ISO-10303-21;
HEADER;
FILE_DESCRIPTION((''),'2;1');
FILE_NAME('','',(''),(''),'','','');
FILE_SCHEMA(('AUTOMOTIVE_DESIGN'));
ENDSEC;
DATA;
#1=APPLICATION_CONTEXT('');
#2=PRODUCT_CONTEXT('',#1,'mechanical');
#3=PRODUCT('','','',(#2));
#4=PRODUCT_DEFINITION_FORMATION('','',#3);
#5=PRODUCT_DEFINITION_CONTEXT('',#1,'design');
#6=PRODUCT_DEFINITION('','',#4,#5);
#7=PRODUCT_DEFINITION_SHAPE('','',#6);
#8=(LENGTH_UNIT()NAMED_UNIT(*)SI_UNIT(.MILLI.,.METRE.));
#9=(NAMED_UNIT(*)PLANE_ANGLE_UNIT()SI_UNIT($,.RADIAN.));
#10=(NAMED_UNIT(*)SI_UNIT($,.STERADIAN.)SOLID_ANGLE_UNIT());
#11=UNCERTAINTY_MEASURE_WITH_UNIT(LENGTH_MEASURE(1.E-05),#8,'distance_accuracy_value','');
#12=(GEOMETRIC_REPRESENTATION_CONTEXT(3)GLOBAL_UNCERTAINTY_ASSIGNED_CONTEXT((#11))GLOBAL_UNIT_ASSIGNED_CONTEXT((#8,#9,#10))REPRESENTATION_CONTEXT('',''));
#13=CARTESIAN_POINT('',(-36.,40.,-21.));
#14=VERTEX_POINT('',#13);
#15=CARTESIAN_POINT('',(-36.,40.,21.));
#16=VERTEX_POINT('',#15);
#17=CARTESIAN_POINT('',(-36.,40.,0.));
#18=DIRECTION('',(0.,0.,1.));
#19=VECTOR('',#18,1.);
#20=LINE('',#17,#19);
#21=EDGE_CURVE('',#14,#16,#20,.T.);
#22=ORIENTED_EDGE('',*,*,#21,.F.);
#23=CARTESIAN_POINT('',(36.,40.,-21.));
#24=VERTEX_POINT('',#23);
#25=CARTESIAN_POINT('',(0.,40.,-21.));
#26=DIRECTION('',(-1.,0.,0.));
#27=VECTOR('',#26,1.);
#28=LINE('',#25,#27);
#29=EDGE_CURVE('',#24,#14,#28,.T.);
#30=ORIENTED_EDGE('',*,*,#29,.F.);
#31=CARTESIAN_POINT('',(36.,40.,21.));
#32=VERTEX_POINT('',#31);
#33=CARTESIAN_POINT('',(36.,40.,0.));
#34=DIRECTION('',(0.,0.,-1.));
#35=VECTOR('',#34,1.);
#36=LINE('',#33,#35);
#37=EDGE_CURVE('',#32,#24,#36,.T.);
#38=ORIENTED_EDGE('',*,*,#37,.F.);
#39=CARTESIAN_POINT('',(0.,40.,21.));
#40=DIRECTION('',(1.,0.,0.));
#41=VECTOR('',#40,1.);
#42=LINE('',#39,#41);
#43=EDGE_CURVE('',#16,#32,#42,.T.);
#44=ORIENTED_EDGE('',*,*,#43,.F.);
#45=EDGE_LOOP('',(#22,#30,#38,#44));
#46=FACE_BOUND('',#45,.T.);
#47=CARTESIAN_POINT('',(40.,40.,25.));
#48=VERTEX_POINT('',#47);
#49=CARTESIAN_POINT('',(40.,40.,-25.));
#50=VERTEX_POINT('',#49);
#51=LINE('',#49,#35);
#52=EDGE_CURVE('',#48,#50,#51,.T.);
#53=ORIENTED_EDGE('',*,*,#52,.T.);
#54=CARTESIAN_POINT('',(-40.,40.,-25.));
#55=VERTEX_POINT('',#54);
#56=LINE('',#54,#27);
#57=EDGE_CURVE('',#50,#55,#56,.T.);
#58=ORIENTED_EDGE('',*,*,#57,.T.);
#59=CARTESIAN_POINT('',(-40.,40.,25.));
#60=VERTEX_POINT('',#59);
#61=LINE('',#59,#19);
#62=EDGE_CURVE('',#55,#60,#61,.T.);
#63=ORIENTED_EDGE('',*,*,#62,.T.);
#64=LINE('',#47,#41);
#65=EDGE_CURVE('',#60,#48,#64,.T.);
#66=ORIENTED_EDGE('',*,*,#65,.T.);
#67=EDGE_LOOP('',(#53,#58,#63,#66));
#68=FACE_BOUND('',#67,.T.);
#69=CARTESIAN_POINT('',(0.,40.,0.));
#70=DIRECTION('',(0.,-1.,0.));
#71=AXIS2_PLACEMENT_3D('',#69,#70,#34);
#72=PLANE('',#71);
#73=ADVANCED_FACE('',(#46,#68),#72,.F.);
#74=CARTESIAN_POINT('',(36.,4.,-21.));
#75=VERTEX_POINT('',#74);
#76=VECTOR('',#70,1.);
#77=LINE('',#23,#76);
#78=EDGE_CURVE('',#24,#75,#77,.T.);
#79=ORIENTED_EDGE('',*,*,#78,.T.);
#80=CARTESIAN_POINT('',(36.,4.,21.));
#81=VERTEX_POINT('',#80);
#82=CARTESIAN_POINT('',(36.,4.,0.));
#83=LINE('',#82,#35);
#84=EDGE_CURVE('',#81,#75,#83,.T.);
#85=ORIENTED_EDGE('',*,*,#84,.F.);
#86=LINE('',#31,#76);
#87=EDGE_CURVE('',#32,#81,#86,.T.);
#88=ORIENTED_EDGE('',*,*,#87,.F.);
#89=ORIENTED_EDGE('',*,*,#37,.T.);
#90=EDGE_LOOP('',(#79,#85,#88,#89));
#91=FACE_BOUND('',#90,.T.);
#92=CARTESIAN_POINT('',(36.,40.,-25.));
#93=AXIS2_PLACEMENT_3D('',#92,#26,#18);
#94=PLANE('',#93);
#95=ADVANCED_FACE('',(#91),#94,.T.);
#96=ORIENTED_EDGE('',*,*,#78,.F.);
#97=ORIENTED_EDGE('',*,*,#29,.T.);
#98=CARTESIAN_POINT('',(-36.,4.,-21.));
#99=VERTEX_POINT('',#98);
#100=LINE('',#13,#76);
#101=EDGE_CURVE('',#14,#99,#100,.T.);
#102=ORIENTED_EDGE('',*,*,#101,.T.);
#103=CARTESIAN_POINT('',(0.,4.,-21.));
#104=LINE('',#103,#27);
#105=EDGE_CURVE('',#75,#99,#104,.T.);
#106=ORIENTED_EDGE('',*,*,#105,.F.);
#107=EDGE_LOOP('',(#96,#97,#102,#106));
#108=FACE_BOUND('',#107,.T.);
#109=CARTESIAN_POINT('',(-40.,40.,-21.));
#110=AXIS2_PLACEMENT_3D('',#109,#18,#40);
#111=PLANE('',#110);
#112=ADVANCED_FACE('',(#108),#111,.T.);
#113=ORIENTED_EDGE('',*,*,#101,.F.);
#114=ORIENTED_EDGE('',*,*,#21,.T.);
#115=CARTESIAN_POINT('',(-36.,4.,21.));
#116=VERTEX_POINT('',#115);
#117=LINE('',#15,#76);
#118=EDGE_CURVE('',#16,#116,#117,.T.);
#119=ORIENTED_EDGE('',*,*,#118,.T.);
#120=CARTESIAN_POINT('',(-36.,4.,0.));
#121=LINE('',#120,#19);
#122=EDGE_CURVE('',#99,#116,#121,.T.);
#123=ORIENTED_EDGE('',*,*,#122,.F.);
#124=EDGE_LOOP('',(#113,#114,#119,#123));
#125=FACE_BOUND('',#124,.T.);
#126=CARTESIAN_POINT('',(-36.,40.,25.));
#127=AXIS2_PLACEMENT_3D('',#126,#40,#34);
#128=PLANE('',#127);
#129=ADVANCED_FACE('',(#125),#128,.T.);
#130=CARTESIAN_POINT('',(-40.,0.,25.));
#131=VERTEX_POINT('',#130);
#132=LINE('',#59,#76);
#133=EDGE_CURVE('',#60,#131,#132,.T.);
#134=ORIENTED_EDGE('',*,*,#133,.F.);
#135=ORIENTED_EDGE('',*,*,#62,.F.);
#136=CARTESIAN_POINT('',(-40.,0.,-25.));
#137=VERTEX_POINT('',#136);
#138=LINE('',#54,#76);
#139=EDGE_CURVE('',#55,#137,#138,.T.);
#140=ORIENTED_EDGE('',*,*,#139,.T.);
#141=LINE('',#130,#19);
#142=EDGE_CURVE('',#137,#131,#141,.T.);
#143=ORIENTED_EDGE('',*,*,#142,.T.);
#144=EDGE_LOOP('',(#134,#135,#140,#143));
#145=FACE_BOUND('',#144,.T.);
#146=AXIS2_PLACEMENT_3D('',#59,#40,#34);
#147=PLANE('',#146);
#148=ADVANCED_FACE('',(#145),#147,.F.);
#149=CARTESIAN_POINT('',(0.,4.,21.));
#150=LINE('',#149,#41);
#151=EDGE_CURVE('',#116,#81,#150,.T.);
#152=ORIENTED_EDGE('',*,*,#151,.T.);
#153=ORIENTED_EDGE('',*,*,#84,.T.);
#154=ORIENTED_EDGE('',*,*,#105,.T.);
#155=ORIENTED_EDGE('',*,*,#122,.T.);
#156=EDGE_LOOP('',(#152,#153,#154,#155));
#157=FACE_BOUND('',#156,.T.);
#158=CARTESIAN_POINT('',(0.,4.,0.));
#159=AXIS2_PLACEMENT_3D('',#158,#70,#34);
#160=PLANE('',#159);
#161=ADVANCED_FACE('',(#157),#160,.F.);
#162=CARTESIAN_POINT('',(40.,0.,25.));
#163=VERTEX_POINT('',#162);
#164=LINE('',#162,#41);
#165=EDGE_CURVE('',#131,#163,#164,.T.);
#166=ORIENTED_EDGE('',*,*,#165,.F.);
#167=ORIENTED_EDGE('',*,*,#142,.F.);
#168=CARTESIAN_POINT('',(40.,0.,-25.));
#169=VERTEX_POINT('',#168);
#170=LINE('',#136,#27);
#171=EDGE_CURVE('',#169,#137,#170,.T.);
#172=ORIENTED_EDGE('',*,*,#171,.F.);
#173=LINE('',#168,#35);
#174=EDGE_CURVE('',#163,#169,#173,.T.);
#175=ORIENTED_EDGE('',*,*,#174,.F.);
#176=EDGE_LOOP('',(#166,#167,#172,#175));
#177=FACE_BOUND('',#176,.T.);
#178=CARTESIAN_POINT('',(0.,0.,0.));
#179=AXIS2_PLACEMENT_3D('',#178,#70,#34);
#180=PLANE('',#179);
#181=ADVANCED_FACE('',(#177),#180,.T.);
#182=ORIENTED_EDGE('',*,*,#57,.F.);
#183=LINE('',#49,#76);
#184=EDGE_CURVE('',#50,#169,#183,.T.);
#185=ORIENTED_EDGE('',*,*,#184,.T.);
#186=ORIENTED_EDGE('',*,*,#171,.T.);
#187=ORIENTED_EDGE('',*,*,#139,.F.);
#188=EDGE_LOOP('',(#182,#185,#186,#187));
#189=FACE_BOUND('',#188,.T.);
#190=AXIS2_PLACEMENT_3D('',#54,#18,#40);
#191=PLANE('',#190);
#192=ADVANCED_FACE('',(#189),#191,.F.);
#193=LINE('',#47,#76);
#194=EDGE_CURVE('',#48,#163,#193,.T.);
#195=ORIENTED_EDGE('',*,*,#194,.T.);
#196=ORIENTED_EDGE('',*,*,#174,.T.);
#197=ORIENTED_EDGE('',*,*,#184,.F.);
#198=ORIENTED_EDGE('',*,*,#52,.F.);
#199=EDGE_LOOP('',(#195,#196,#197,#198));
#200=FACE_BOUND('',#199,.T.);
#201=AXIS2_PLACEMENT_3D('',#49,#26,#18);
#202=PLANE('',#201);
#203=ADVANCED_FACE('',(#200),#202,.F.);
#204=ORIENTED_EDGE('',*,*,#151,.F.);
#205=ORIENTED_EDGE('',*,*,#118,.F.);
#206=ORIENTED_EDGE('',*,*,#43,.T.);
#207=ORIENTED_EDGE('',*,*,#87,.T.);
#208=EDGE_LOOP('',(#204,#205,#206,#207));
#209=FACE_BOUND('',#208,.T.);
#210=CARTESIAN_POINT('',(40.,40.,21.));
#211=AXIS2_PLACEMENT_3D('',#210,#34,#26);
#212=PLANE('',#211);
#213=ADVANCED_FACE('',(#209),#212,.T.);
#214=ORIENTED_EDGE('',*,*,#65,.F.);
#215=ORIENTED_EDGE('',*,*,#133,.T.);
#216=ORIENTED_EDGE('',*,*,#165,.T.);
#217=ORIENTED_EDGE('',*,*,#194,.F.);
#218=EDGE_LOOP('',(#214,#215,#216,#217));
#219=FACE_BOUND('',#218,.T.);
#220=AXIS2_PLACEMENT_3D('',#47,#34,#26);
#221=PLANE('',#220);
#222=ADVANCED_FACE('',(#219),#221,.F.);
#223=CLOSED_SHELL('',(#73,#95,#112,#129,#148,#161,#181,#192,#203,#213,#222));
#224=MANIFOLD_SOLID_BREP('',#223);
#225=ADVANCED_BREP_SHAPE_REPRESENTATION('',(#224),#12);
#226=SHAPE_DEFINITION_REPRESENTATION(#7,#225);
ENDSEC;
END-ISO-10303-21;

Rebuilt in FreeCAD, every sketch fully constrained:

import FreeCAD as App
import Part
import Sketcher

V = App.Vector
Q = App.Units.Quantity


def faces_at(feature, points):
    """Names of the faces that lie closest to the given points."""
    faces = feature.Shape.Faces
    near = lambda p: min(range(len(faces)), key=lambda i: faces[i].distToShape(Part.Vertex(*p))[0])
    return sorted({f"Face{near(p) + 1}" for p in points})


def add_polygon(sketch, points):
    """Adds a closed chain of lines whose ends are joined by coincident constraints."""
    first, n = sketch.GeometryCount, len(points)
    for a, b in zip(points, points[1:] + points[:1]):
        sketch.addGeometry(Part.LineSegment(App.Vector(*a, 0), App.Vector(*b, 0)), False)
    for i in range(n):
        sketch.addConstraint(Sketcher.Constraint("Coincident", first + i, 2, first + (i + 1) % n, 1))

doc = App.newDocument("Part")
params = doc.addObject("Spreadsheet::Sheet", "Params")
for row, (alias, value) in enumerate([
    ("sketch1_width", "80 mm"),
    ("sketch1_height", "50 mm"),
    ("pad1_length", "40 mm"),
    ("thickness_wall", "4 mm"),
], start=1):
    params.set(f"A{row}", alias)
    params.set(f"B{row}", "=" + value)
    params.setAlias(f"B{row}", alias)

body = doc.addObject("PartDesign::Body", "Body")

# Sketch on XZ plane
sketch1 = body.newObject("Sketcher::SketchObject", "Sketch")
sketch1.AttachmentSupport = (doc.getObject("XZ_Plane"), [""])
sketch1.MapMode = "FlatFace"
add_polygon(sketch1, [(-40, -25), (-40, 25), (40, 25), (40, -25)])  # lines 0-3
sketch1.addConstraint([
    Sketcher.Constraint("Vertical", 0),
    Sketcher.Constraint("Horizontal", 1),
    Sketcher.Constraint("Vertical", 2),
    Sketcher.Constraint("Horizontal", 3),
    Sketcher.Constraint("Symmetric", 0, 2, 2, 2, -1, 1),
    Sketcher.Constraint("DistanceX", 1, 1, 1, 2, Q("80 mm")),
    Sketcher.Constraint("DistanceY", 0, 1, 0, 2, Q("50 mm")),
])
sketch1.setExpression("Constraints[9]", "Params.sketch1_width")
sketch1.setExpression("Constraints[10]", "Params.sketch1_height")
pad1 = body.newObject("PartDesign::Pad", "Pad")
pad1.Profile = sketch1
pad1.setExpression("Length", "Params.pad1_length")
pad1.Reversed = True
doc.recompute()

thickness = body.newObject("PartDesign::Thickness", "Thickness")
thickness.Base = (pad1, faces_at(pad1, [(0, 40, 0)]))
thickness.setExpression("Value", "Params.thickness_wall")
thickness.Reversed = True
thickness.Join = "Intersection"

doc.recompute()
